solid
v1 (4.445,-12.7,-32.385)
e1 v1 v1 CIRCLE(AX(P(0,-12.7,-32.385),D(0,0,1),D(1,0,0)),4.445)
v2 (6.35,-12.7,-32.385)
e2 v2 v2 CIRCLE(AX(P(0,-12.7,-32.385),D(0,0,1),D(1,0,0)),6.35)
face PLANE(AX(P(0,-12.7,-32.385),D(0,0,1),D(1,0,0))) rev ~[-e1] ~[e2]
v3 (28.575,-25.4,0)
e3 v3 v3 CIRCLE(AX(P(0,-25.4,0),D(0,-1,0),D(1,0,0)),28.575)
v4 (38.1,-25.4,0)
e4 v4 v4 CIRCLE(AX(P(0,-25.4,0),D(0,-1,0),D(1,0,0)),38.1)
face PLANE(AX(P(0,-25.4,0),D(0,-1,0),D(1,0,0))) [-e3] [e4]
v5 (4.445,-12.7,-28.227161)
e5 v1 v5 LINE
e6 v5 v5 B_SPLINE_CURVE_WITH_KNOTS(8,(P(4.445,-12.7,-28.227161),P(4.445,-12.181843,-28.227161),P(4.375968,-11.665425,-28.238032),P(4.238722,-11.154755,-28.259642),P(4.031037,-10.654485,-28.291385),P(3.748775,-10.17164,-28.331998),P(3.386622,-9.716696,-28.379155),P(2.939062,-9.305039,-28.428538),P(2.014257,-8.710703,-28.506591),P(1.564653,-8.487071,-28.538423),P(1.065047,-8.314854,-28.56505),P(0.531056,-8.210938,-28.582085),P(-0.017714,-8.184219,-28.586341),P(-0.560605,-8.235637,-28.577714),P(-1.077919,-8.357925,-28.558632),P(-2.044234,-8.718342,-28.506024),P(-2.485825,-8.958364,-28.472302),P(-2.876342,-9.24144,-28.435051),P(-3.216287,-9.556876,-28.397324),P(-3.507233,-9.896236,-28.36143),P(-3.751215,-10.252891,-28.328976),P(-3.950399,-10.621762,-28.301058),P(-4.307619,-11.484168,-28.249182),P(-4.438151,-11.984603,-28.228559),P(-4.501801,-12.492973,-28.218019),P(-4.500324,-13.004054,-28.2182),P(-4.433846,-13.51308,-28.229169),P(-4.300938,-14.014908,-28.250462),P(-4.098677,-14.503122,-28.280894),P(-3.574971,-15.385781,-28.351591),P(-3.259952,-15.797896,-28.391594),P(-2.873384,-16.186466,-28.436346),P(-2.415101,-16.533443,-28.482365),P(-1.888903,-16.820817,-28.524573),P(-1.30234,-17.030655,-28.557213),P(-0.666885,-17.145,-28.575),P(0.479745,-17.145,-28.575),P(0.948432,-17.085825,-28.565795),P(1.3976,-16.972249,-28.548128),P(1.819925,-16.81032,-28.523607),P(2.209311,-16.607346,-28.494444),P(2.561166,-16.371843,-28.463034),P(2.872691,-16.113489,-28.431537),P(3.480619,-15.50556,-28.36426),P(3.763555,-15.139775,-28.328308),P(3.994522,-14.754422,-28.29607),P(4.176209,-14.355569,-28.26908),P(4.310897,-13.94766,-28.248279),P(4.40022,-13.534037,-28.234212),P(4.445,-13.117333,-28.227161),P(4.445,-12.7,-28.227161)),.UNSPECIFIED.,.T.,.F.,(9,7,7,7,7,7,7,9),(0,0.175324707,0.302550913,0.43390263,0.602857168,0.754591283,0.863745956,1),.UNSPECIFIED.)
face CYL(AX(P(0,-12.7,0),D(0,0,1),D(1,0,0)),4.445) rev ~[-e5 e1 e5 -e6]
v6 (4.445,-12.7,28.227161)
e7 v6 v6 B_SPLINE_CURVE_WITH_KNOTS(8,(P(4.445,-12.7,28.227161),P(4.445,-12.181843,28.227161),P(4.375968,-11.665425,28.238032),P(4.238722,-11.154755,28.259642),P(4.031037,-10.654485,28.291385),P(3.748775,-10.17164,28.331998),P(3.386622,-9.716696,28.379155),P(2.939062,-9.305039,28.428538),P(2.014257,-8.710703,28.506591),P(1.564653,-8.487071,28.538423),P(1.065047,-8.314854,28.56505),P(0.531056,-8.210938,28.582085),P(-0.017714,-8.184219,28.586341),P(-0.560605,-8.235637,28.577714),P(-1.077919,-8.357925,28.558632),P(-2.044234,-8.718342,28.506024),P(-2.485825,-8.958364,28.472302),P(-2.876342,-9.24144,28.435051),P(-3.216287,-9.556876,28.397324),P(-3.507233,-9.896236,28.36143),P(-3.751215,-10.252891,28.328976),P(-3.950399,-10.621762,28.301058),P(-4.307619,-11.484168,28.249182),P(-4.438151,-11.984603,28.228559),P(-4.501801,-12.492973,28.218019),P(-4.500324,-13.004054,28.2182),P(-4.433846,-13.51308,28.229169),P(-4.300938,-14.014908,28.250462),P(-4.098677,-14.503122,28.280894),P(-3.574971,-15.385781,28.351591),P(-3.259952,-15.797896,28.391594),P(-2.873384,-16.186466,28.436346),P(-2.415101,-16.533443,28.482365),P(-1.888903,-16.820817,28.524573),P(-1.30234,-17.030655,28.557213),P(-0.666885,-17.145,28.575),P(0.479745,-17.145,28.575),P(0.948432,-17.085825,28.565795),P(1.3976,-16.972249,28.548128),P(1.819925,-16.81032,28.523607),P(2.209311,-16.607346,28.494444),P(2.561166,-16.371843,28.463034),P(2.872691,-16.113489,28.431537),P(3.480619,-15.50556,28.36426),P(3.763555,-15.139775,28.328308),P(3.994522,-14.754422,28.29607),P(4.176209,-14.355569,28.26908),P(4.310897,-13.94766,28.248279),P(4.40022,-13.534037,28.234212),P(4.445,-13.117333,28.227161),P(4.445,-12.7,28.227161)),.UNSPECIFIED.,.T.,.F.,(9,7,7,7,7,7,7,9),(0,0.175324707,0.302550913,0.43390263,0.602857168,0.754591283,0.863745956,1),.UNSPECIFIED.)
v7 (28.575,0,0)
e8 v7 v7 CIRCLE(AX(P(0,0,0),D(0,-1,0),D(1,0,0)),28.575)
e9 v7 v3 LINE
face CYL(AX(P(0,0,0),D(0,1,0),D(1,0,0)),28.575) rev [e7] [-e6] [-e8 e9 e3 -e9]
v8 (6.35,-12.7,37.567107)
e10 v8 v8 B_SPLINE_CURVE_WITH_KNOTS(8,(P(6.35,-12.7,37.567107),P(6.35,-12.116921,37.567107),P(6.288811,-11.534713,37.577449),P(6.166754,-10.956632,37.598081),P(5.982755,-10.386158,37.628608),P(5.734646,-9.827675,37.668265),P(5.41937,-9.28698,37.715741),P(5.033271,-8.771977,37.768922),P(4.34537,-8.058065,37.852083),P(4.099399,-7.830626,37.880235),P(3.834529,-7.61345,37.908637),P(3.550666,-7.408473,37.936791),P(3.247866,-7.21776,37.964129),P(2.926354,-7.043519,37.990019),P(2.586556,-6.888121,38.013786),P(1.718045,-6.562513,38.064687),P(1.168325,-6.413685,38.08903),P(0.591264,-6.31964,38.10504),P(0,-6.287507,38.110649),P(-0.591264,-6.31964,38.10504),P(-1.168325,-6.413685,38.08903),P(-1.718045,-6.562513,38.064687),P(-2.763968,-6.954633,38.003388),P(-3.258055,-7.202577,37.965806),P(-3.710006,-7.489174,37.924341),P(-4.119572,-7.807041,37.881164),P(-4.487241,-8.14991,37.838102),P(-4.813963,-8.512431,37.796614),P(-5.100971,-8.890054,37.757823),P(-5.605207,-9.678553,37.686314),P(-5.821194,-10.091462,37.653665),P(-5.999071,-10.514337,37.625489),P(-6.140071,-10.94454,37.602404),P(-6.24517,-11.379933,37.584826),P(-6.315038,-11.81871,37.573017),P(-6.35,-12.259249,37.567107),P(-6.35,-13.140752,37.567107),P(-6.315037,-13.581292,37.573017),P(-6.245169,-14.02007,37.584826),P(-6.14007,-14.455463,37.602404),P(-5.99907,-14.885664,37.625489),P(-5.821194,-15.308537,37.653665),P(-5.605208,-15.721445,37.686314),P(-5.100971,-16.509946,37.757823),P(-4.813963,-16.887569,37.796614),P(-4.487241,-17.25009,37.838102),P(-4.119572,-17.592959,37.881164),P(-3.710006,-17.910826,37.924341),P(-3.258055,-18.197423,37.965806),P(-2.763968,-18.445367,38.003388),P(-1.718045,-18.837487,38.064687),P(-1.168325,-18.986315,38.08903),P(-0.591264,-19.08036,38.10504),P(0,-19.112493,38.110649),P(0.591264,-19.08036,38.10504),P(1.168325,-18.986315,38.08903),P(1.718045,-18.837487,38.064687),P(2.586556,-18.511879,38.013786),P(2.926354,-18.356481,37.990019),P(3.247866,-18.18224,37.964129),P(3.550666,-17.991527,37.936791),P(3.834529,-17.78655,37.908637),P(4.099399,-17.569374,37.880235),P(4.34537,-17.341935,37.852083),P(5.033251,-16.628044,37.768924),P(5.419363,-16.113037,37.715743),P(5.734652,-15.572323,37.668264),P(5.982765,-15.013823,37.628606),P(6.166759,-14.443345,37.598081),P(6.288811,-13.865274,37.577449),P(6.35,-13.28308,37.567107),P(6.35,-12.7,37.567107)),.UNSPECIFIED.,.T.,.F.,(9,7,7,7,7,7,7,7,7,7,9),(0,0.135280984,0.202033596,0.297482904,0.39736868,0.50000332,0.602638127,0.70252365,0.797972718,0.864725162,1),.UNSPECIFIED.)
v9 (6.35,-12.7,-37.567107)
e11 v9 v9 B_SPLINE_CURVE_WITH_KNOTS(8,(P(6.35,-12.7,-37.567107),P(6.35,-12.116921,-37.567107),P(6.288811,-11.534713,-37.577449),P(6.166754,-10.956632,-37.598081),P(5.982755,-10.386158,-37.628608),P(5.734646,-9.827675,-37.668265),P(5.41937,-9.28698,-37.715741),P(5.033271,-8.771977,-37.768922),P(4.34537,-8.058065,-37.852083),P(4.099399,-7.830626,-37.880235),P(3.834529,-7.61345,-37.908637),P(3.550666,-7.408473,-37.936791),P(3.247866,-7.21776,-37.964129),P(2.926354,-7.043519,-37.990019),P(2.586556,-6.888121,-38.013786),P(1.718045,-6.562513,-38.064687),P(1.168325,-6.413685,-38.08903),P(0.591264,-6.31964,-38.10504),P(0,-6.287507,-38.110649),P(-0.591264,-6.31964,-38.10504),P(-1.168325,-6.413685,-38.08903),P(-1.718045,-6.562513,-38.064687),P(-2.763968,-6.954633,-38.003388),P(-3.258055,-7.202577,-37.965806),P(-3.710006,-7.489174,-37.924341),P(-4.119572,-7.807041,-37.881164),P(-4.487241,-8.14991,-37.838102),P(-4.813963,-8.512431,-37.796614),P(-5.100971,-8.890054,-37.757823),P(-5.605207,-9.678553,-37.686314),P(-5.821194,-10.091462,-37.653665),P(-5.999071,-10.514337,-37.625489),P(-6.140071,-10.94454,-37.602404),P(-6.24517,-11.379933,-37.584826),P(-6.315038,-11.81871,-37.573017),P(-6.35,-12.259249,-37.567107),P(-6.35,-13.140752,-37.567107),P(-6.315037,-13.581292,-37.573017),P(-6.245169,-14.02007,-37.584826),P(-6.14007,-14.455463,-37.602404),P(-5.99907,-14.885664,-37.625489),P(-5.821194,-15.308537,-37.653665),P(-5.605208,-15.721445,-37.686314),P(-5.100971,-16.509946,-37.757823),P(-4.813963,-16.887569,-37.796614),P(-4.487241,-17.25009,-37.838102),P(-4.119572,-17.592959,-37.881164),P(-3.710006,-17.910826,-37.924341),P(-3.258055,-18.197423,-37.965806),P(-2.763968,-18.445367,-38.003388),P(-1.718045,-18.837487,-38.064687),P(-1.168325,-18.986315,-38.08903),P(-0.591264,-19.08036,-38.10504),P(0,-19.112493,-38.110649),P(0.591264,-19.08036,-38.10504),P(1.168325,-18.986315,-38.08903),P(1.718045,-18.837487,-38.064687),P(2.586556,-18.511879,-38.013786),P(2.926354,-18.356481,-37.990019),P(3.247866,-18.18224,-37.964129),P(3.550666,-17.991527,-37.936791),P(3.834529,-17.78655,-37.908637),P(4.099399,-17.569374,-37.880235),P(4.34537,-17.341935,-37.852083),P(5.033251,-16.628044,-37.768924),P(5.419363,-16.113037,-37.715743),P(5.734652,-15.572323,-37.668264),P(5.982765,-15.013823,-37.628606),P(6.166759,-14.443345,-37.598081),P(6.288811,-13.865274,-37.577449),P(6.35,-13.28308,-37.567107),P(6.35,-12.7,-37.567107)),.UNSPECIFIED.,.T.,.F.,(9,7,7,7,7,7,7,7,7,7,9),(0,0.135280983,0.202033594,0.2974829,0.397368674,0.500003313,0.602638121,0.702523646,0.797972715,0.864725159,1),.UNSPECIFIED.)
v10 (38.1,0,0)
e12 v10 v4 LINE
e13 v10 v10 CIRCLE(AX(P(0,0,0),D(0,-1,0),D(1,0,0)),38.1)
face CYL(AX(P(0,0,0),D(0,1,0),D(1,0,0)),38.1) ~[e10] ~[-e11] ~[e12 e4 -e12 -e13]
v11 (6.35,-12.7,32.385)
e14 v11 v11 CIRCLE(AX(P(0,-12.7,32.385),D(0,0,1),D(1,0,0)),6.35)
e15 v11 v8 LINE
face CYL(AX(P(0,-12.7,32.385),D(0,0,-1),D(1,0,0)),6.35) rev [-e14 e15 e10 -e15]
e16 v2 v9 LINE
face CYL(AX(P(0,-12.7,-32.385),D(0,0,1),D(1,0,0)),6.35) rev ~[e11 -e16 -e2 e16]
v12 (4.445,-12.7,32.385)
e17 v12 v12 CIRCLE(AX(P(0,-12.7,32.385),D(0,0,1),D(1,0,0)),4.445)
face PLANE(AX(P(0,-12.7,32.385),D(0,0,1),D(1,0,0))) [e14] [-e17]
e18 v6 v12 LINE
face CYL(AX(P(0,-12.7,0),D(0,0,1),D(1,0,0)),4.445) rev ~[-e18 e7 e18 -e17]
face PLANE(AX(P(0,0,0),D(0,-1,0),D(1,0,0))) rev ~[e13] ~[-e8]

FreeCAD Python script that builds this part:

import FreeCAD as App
import Part
import Sketcher

V = App.Vector
Q = App.Units.Quantity

doc = App.newDocument("Part")
params = doc.addObject("Spreadsheet::Sheet", "Params")
for row, (alias, value) in enumerate([
    ("sketch1_diameter", "3 in"),
    ("sketch1_diameter2", "2.25 in"),
    ("pad1_length", "1 in"),
    ("sketch2_diameter", "0.35 in"),
    ("pocket1_length", "3 in"),
    ("sketch3_diameter", "0.5 in"),
    ("sketch3_diameter2", "0.35 in"),
    ("pocket2_length", "1 in"),
    ("sketch4_diameter", "0.5 in"),
    ("sketch4_diameter2", "0.35 in"),
    ("pocket3_length", "1 in"),
], start=1):
    params.set(f"A{row}", alias)
    params.set(f"B{row}", "=" + value)
    params.setAlias(f"B{row}", alias)

body = doc.addObject("PartDesign::Body", "Body")

# Sketch on XZ plane
sketch1 = doc.addObject("Sketcher::SketchObject", "Sketch")
body.addObject(sketch1)
sketch1.AttachmentSupport = (doc.XZ_Plane, [""])
sketch1.MapMode = "FlatFace"
sketch1.addGeometry(Part.Circle(V(0, 0, 0), V(0, 0, 1), 38), False)
sketch1.addGeometry(Part.Circle(V(0, 0, 0), V(0, 0, 1), 29), False)
sketch1.addConstraint(Sketcher.Constraint("Coincident", 0, 3, -1, 1))
sketch1.addConstraint(Sketcher.Constraint("Coincident", 1, 3, -1, 1))
sketch1.addConstraint(Sketcher.Constraint("Diameter", 0, Q("3 in")))
sketch1.addConstraint(Sketcher.Constraint("Diameter", 1, Q("2.25 in")))
sketch1.setExpression("Constraints[2]", "Params.sketch1_diameter")
sketch1.setExpression("Constraints[3]", "Params.sketch1_diameter2")
pad1 = doc.addObject("PartDesign::Pad", "Pad")
body.addObject(pad1)
pad1.Profile = sketch1
pad1.setExpression("Length", "Params.pad1_length")

# Sketch on XY plane
sketch2 = doc.addObject("Sketcher::SketchObject", "Sketch001")
body.addObject(sketch2)
sketch2.AttachmentSupport = (doc.XY_Plane, [""])
sketch2.MapMode = "FlatFace"
sketch2.addGeometry(Part.Circle(V(0, -12.7, 0), V(0, 0, 1), 4.4), False)
sketch2.addConstraint(Sketcher.Constraint("PointOnObject", 0, 3, -2))
sketch2.addConstraint(Sketcher.Constraint("Diameter", 0, Q("0.35 in")))
sketch2.addConstraint(Sketcher.Constraint("DistanceY", 0, 3, -1, 1, Q("0.5 in")))
sketch2.setExpression("Constraints[1]", "Params.sketch2_diameter")
pocket1 = doc.addObject("PartDesign::Pocket", "Pocket")
body.addObject(pocket1)
pocket1.Profile = sketch2
pocket1.setExpression("Length", "Params.pocket1_length")
pocket1.Midplane = True

# Sketch on XY plane
sketch3 = doc.addObject("Sketcher::SketchObject", "Sketch002")
body.addObject(sketch3)
sketch3.AttachmentSupport = (doc.XY_Plane, [""])
sketch3.MapMode = "FlatFace"
sketch3.AttachmentOffset = App.Placement(V(0, 0, 1.275 * 25.4), App.Rotation())
sketch3.addGeometry(Part.Circle(V(0, -12.7, 0), V(0, 0, 1), 6.3), False)
sketch3.addGeometry(Part.Circle(V(0, -12.7, 0), V(0, 0, 1), 4.4), False)
sketch3.addConstraint(Sketcher.Constraint("Coincident", 1, 3, 0, 3))
sketch3.addConstraint(Sketcher.Constraint("PointOnObject", 0, 3, -2))
sketch3.addConstraint(Sketcher.Constraint("Diameter", 0, Q("0.5 in")))
sketch3.addConstraint(Sketcher.Constraint("Diameter", 1, Q("0.35 in")))
sketch3.addConstraint(Sketcher.Constraint("DistanceY", 0, 3, -1, 1, Q("0.5 in")))
sketch3.setExpression("Constraints[2]", "Params.sketch3_diameter")
sketch3.setExpression("Constraints[3]", "Params.sketch3_diameter2")
pocket2 = doc.addObject("PartDesign::Pocket", "Pocket001")
body.addObject(pocket2)
pocket2.Profile = sketch3
pocket2.setExpression("Length", "Params.pocket2_length")
pocket2.Reversed = True

# Sketch on XY plane
sketch4 = doc.addObject("Sketcher::SketchObject", "Sketch003")
body.addObject(sketch4)
sketch4.AttachmentSupport = (doc.XY_Plane, [""])
sketch4.MapMode = "FlatFace"
sketch4.AttachmentOffset = App.Placement(V(0, 0, -1.275 * 25.4), App.Rotation())
sketch4.addGeometry(Part.Circle(V(0, -12.7, 0), V(0, 0, 1), 6.3), False)
sketch4.addGeometry(Part.Circle(V(0, -12.7, 0), V(0, 0, 1), 4.4), False)
sketch4.addConstraint(Sketcher.Constraint("Coincident", 1, 3, 0, 3))
sketch4.addConstraint(Sketcher.Constraint("PointOnObject", 0, 3, -2))
sketch4.addConstraint(Sketcher.Constraint("Diameter", 0, Q("0.5 in")))
sketch4.addConstraint(Sketcher.Constraint("Diameter", 1, Q("0.35 in")))
sketch4.addConstraint(Sketcher.Constraint("DistanceY", 0, 3, -1, 1, Q("0.5 in")))
sketch4.setExpression("Constraints[2]", "Params.sketch4_diameter")
sketch4.setExpression("Constraints[3]", "Params.sketch4_diameter2")
pocket3 = doc.addObject("PartDesign::Pocket", "Pocket002")
body.addObject(pocket3)
pocket3.Profile = sketch4
pocket3.setExpression("Length", "Params.pocket3_length")

doc.recompute()
